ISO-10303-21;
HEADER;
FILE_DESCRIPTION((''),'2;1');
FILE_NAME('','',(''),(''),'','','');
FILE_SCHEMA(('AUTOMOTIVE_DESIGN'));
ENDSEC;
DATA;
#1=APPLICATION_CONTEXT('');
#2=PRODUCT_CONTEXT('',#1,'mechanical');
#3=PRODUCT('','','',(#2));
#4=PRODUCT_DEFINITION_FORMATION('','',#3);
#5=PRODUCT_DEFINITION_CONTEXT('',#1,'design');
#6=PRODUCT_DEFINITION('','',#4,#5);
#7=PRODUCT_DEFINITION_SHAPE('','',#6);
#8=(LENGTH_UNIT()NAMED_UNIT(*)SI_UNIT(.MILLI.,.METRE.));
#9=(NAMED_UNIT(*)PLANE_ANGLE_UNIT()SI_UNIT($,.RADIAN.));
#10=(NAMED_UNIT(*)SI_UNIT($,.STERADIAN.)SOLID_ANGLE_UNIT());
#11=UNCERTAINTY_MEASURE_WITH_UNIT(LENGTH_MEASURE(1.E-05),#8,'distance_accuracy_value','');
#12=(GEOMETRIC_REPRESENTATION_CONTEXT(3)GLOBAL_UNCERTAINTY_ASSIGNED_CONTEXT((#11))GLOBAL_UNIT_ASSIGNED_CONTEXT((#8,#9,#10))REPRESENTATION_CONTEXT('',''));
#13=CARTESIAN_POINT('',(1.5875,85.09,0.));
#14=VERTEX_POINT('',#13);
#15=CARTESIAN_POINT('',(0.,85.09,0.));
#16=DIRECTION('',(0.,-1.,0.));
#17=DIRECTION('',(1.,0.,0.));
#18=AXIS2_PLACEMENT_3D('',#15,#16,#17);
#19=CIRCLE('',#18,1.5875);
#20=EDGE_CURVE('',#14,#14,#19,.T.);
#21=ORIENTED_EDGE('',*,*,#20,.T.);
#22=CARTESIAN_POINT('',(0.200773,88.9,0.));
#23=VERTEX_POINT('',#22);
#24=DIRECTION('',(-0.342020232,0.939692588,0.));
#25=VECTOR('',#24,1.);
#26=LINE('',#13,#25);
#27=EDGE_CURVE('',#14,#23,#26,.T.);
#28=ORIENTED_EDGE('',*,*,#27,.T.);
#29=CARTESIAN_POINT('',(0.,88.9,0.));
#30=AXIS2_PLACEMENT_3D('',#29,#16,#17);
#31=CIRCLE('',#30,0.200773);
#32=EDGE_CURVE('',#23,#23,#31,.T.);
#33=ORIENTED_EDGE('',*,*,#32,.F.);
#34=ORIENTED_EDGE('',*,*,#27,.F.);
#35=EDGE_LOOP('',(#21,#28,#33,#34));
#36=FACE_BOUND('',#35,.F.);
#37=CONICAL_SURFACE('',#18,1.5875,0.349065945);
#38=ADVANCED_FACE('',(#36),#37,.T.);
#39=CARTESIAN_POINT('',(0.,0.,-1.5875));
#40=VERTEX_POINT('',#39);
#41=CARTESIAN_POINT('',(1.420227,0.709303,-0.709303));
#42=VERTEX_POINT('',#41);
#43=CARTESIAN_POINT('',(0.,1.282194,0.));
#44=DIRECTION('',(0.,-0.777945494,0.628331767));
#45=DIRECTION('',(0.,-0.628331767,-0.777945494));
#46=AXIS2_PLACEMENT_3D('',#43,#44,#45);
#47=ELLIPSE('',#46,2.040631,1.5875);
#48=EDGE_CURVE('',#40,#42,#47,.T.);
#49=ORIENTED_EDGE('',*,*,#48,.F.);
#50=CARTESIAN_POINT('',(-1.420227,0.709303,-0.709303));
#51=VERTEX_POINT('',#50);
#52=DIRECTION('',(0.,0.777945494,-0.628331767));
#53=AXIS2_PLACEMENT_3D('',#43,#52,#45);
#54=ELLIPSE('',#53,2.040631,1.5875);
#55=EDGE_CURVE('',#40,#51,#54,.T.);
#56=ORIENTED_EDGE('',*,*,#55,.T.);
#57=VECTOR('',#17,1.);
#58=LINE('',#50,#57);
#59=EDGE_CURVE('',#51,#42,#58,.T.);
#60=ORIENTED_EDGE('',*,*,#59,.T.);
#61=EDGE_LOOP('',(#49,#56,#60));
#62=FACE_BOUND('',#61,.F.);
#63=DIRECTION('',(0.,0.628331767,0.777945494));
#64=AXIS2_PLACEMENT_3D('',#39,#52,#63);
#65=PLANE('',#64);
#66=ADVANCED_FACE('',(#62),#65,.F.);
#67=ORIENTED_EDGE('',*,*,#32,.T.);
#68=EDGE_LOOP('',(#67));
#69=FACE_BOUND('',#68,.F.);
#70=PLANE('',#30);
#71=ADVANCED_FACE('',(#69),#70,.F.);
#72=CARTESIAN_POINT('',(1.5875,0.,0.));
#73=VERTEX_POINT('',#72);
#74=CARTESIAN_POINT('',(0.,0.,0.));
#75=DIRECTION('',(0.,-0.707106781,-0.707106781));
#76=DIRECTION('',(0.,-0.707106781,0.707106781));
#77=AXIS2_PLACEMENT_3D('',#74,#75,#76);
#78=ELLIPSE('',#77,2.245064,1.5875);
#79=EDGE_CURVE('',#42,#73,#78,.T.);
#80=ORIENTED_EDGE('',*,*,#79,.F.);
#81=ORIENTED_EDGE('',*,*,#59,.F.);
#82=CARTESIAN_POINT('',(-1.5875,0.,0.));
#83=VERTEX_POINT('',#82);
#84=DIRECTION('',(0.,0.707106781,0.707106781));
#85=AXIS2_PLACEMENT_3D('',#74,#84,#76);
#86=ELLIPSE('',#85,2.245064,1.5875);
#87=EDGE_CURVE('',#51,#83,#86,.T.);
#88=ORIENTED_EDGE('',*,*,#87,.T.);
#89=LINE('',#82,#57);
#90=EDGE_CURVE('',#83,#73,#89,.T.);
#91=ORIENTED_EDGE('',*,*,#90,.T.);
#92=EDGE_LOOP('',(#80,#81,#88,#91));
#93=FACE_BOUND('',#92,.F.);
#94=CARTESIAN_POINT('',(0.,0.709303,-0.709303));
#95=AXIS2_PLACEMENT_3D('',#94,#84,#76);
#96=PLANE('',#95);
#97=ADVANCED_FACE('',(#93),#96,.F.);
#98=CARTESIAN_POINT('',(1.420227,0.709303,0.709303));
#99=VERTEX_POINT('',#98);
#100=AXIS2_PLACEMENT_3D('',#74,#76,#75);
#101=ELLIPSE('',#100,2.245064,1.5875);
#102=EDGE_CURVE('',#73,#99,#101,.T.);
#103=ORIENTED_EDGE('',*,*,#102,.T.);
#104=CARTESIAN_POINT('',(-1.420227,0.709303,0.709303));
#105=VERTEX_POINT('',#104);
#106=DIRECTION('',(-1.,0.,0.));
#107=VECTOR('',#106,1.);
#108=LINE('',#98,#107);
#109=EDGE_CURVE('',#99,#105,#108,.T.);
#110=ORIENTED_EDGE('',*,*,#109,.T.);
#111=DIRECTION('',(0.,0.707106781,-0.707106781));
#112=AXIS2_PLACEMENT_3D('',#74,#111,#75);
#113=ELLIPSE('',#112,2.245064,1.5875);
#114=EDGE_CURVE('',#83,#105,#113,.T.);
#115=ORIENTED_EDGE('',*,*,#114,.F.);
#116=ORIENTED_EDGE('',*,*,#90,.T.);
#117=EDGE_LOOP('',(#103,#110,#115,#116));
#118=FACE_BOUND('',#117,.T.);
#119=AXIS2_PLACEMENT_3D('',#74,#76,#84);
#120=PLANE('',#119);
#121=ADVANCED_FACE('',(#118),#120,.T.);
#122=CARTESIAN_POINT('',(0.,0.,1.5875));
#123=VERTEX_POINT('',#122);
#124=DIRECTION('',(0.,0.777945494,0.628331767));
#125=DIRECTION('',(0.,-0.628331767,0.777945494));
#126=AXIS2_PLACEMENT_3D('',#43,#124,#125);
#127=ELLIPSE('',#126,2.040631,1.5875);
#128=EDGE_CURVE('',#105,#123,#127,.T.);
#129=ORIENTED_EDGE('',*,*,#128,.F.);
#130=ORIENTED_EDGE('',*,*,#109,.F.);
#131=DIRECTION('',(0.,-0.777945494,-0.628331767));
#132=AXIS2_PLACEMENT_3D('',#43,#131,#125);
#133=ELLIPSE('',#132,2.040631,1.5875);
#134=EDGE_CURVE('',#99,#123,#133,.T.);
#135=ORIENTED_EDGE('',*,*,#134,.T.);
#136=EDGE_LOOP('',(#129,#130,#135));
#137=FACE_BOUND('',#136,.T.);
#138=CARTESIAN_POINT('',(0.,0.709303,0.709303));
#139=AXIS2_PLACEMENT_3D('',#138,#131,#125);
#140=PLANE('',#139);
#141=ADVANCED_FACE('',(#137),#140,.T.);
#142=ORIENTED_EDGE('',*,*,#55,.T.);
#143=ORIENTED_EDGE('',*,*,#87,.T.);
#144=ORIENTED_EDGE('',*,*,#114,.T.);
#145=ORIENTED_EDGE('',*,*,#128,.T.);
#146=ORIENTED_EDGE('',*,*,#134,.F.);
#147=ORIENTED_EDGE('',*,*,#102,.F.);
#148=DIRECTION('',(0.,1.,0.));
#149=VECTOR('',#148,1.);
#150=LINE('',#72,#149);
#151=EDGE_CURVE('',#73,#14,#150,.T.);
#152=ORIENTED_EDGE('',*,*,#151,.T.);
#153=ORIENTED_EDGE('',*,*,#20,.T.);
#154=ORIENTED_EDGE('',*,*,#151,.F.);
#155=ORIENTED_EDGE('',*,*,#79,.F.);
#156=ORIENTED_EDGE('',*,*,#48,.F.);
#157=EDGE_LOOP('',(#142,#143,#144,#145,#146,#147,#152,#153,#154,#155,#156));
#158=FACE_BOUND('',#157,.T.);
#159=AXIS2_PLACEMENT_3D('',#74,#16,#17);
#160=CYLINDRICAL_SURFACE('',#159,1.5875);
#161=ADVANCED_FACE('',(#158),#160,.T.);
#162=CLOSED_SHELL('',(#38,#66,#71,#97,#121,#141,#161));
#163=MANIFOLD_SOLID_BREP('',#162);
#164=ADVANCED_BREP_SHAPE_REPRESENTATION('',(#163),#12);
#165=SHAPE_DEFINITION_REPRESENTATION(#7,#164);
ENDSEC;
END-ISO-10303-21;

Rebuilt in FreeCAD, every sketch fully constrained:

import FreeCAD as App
import Part
import Sketcher

V = App.Vector
Q = App.Units.Quantity


def edges_at(feature, points):
    """Names of the edges that pass closest to the given points."""
    edges = feature.Shape.Edges
    near = lambda p: min(range(len(edges)), key=lambda i: edges[i].distToShape(Part.Vertex(*p))[0])
    return sorted({f"Edge{near(p) + 1}" for p in points})

doc = App.newDocument("Part")
params = doc.addObject("Spreadsheet::Sheet", "Params")
for row, (alias, value) in enumerate([
    ("sketch1_diameter", "0.125 in"),
    ("pad1_length", "3.5 in"),
    ("chamfer_size", "0.15 in"),
    ("chamfer_size2", "1.386727 mm"),
    ("sketch2_height", "0.0625 in"),
    ("pocket1_length", "1 in"),
    ("sketch3_height", "0.0625 in"),
    ("pocket2_length", "1 in"),
], start=1):
    params.set(f"A{row}", alias)
    params.set(f"B{row}", "=" + value)
    params.setAlias(f"B{row}", alias)

body = doc.addObject("PartDesign::Body", "Body")

# Sketch on XZ plane
sketch1 = body.newObject("Sketcher::SketchObject", "Sketch")
sketch1.AttachmentSupport = (doc.getObject("XZ_Plane"), [""])
sketch1.MapMode = "FlatFace"
sketch1.addGeometry(Part.Circle(V(0, 0, 0), V(0, 0, 1), 1.5875), False)
sketch1.addConstraint([
    Sketcher.Constraint("Coincident", 0, 3, -1, 1),
    Sketcher.Constraint("Diameter", 0, Q("0.125 in")),
])
sketch1.setExpression("Constraints[1]", "Params.sketch1_diameter")
pad1 = body.newObject("PartDesign::Pad", "Pad")
pad1.Profile = sketch1
pad1.setExpression("Length", "Params.pad1_length")
pad1.Reversed = True
doc.recompute()

chamfer = body.newObject("PartDesign::Chamfer", "Chamfer")
chamfer.Base = (pad1, edges_at(pad1, [(-1.587, 88.9, 0)]))
chamfer.ChamferType = "Two distances"
chamfer.setExpression("Size", "Params.chamfer_size")
chamfer.setExpression("Size2", "Params.chamfer_size2")

# Sketch on YZ plane
sketch2 = body.newObject("Sketcher::SketchObject", "Sketch001")
sketch2.AttachmentSupport = (doc.getObject("YZ_Plane"), [""])
sketch2.MapMode = "FlatFace"
sketch2.addGeometry([
    Part.LineSegment(V(0.709303, -0.709303, 0), V(0, 0, 0)),  # 0
    Part.LineSegment(V(0, 0, 0), V(0, -1.5875, 0)),  # 1
    Part.LineSegment(V(0, -1.5875, 0), V(0.709303, -0.709303, 0)),  # 2
    Part.LineSegment(V(0.709303, 0.709303, 0), V(0, 1.5875, 0)),  # 3
    Part.LineSegment(V(0, 1.5875, 0), V(0, 0, 0)),  # 4
    Part.LineSegment(V(0, 0, 0), V(0.709303, 0.709303, 0)),  # 5
], False)
sketch2.addConstraint([
    Sketcher.Constraint("Coincident", 0, 2, 1, 1),
    Sketcher.Constraint("Coincident", 1, 2, 2, 1),
    Sketcher.Constraint("Coincident", 2, 2, 0, 1),
    Sketcher.Constraint("Coincident", 3, 2, 4, 1),
    Sketcher.Constraint("Coincident", 4, 2, 5, 1),
    Sketcher.Constraint("Coincident", 5, 2, 3, 1),
    Sketcher.Constraint("Vertical", 1),
    Sketcher.Constraint("Vertical", 4),
    Sketcher.Constraint("Coincident", 0, 2, -1, 1),
    Sketcher.Constraint("Coincident", 4, 2, -1, 1),
    Sketcher.Constraint("Symmetric", 2, 2, 5, 2, -1),
    Sketcher.Constraint("Perpendicular", 0, 5),
    Sketcher.Constraint("Equal", 1, 4),
    Sketcher.Constraint("DistanceY", 1, 2, 1, 1, Q("0.0625 in")),
    Sketcher.Constraint("Distance", 0, Q("1.003106 mm")),
])
sketch2.setExpression("Constraints[13]", "Params.sketch2_height")
pocket1 = body.newObject("PartDesign::Pocket", "Pocket")
pocket1.Profile = sketch2
pocket1.setExpression("Length", "Params.pocket1_length")

# Sketch on YZ plane
sketch3 = body.newObject("Sketcher::SketchObject", "Sketch002")
sketch3.AttachmentSupport = (doc.getObject("YZ_Plane"), [""])
sketch3.MapMode = "FlatFace"
sketch3.addGeometry([
    Part.LineSegment(V(0.709303, -0.709303, 0), V(0, 0, 0)),  # 0
    Part.LineSegment(V(0, 0, 0), V(0, -1.5875, 0)),  # 1
    Part.LineSegment(V(0, -1.5875, 0), V(0.709303, -0.709303, 0)),  # 2
    Part.LineSegment(V(0.709303, 0.709303, 0), V(0, 1.5875, 0)),  # 3
    Part.LineSegment(V(0, 1.5875, 0), V(0, 0, 0)),  # 4
    Part.LineSegment(V(0, 0, 0), V(0.709303, 0.709303, 0)),  # 5
], False)
sketch3.addConstraint([
    Sketcher.Constraint("Coincident", 0, 2, 1, 1),
    Sketcher.Constraint("Coincident", 1, 2, 2, 1),
    Sketcher.Constraint("Coincident", 2, 2, 0, 1),
    Sketcher.Constraint("Coincident", 3, 2, 4, 1),
    Sketcher.Constraint("Coincident", 4, 2, 5, 1),
    Sketcher.Constraint("Coincident", 5, 2, 3, 1),
    Sketcher.Constraint("Vertical", 1),
    Sketcher.Constraint("Vertical", 4),
    Sketcher.Constraint("Coincident", 0, 2, -1, 1),
    Sketcher.Constraint("Coincident", 4, 2, -1, 1),
    Sketcher.Constraint("Symmetric", 2, 2, 5, 2, -1),
    Sketcher.Constraint("Perpendicular", 0, 5),
    Sketcher.Constraint("Equal", 1, 4),
    Sketcher.Constraint("DistanceY", 1, 2, 1, 1, Q("0.0625 in")),
    Sketcher.Constraint("Distance", 0, Q("1.003106 mm")),
])
sketch3.setExpression("Constraints[13]", "Params.sketch3_height")
pocket2 = body.newObject("PartDesign::Pocket", "Pocket001")
pocket2.Profile = sketch3
pocket2.setExpression("Length", "Params.pocket2_length")
pocket2.Reversed = True

doc.recompute()
